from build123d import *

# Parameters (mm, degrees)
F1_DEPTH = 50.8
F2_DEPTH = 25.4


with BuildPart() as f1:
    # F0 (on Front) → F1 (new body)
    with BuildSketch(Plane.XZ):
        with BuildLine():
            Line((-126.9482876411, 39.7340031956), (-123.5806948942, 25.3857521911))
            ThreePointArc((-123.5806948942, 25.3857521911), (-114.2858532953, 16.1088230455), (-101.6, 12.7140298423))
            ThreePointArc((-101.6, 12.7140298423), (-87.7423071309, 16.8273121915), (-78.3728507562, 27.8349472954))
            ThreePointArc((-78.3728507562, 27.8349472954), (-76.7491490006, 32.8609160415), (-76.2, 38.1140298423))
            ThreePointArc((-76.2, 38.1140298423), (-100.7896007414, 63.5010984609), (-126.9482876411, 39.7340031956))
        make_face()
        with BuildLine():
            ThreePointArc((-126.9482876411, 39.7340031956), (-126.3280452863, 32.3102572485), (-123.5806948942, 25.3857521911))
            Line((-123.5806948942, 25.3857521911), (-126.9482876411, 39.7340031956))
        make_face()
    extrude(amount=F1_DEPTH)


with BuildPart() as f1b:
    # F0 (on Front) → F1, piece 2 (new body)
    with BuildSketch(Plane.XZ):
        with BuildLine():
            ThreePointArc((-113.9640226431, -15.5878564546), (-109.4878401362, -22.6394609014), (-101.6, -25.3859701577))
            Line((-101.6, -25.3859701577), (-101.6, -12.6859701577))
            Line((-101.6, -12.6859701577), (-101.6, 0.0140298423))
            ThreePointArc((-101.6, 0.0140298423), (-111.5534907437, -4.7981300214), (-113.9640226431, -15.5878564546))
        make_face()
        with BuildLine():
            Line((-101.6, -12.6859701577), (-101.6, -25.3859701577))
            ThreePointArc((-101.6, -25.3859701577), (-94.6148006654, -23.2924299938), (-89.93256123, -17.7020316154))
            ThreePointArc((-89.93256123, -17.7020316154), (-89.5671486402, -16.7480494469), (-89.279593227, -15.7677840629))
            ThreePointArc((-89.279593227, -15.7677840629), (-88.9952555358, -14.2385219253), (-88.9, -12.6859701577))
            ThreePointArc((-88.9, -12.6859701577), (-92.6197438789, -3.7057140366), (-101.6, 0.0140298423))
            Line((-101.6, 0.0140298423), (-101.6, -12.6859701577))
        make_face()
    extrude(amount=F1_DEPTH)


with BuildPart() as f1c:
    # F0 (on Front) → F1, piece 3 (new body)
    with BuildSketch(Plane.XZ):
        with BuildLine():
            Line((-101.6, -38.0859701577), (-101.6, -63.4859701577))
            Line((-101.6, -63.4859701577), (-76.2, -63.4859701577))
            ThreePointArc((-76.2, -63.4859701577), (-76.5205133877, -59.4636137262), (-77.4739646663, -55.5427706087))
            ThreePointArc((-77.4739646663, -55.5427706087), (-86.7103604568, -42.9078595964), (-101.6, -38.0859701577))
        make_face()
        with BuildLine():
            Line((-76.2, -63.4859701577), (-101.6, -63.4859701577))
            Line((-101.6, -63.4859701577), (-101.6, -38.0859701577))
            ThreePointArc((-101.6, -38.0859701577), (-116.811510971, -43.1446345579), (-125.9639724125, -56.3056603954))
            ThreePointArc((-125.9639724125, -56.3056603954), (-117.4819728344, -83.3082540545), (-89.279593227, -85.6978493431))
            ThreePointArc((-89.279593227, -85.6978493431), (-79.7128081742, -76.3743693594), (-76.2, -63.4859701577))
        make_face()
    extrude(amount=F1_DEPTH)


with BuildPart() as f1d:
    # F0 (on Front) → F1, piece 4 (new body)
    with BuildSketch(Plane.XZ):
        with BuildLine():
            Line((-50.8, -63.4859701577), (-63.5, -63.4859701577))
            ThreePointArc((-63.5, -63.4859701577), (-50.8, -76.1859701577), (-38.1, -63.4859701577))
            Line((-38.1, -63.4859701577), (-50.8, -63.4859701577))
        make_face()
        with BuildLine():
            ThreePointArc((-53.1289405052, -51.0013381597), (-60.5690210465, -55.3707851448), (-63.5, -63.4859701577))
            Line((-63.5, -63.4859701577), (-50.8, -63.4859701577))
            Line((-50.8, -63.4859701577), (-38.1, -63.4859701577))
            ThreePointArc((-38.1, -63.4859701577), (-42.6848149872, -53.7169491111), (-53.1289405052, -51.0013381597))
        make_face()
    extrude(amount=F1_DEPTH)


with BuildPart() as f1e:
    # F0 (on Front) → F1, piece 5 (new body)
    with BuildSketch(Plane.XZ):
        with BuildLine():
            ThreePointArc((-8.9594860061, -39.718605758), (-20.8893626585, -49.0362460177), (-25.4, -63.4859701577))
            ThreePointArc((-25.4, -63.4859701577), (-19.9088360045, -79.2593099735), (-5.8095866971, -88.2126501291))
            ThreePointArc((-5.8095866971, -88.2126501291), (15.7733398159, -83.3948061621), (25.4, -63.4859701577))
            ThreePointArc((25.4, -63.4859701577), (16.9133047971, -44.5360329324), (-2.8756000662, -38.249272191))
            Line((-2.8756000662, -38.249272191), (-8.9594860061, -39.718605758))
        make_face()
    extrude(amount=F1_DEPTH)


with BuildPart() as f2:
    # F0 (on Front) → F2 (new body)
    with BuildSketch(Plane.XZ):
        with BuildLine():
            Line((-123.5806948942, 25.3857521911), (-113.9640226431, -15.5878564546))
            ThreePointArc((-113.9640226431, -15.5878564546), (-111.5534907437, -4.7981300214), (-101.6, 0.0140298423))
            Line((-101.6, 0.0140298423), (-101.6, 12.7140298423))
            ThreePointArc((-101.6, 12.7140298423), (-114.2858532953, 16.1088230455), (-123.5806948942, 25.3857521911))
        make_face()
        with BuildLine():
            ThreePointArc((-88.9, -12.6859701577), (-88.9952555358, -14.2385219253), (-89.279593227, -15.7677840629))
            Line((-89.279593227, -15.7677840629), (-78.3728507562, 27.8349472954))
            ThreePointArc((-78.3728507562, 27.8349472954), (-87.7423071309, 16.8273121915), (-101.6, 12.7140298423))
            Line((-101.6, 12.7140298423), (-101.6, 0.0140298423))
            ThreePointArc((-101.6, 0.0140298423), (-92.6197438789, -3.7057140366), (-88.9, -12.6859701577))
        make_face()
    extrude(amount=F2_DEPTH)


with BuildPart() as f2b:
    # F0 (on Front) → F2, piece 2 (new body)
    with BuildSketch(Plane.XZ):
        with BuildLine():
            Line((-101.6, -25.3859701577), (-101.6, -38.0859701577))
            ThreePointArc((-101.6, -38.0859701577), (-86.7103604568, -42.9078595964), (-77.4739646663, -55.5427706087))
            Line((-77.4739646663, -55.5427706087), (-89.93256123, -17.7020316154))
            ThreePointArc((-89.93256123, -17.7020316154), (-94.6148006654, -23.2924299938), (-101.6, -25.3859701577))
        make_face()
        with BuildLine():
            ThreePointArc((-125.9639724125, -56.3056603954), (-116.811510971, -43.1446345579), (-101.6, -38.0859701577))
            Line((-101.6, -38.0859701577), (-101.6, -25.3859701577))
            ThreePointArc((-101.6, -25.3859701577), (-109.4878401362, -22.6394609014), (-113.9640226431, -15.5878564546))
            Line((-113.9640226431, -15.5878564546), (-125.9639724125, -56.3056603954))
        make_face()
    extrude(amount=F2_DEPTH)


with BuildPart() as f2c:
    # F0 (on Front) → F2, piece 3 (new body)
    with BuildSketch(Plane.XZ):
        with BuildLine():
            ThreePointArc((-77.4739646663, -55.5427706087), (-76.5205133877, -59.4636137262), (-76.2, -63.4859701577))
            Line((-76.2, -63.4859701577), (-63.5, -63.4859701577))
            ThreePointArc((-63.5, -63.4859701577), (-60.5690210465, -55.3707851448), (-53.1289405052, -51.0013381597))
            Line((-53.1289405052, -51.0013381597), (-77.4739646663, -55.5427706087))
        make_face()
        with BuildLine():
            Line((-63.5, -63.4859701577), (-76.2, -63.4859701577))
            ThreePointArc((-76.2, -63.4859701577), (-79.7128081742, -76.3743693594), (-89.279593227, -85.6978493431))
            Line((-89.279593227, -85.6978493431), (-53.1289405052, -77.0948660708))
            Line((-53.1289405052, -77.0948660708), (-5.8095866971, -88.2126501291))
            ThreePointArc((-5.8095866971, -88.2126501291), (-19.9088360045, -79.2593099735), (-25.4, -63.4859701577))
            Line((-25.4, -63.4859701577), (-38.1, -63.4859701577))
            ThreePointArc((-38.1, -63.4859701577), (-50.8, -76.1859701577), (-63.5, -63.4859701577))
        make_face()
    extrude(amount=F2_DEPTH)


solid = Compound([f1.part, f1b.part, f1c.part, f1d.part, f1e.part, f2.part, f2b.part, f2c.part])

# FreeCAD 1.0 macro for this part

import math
import FreeCAD as App
import Part
import Sketcher

V = App.Vector
Q = App.Units.Quantity

doc = App.newDocument("Part")
body = doc.addObject("PartDesign::Body", "Body")

# Sketch on XZ plane
sketch1 = body.newObject("Sketcher::SketchObject", "Sketch")
sketch1.AttachmentSupport = (doc.getObject("XZ_Plane"), [""])
sketch1.MapMode = "FlatFace"
sketch1.addGeometry([
    Part.ArcOfCircle(Part.Circle(V(-102, 38, 0), V(0, 0, 1), 25), math.radians(-150), math.radians(-24)),
    Part.ArcOfCircle(Part.Circle(V(-102, 38, 0), V(0, 0, 1), 25), math.radians(-24), math.radians(0)),
    Part.ArcOfCircle(Part.Circle(V(-102, 38, 0), V(0, 0, 1), 25), math.radians(0), math.radians(176)),
    Part.ArcOfCircle(Part.Circle(V(-102, 38, 0), V(0, 0, 1), 25), math.radians(176), math.radians(210)),
], False)
sketch1.addConstraint([
    Sketcher.Constraint("Tangent", 0, 2, 1, 1),
    Sketcher.Constraint("Tangent", 1, 2, 2, 1),
    Sketcher.Constraint("Tangent", 2, 2, 3, 1),
    Sketcher.Constraint("Tangent", 3, 2, 0, 1),
    Sketcher.Constraint("Equal", 0, 1),
    Sketcher.Constraint("Horizontal", 3, 3, 1, 2),
    Sketcher.Constraint("Radius", 0, Q("1 in")),
    Sketcher.Constraint("DistanceX", 0, 3, -1, 1, Q("4 in")),
    Sketcher.Constraint("DistanceY", -1, 1, 0, 3, 38.11403),
    Sketcher.Constraint("DistanceX", 0, 2, -1, 1, 78.372851),
    Sketcher.Constraint("DistanceY", 3, 2, 2, 2, 14.348251),
    Sketcher.Constraint("DistanceX", 2, 2, -1, 1, 126.948288),
])
pad1 = body.newObject("PartDesign::Pad", "Pad")
pad1.Profile = sketch1
pad1.Length = Q("2 in")
body2 = doc.addObject("PartDesign::Body", "Body001")

# Sketch on XZ plane
sketch2 = body2.newObject("Sketcher::SketchObject", "Sketch001")
sketch2.AttachmentSupport = (doc.getObject("XZ_Plane001"), [""])
sketch2.MapMode = "FlatFace"
sketch2.addGeometry([
    Part.ArcOfCircle(Part.Circle(V(-101.6, -12.7, 0), V(0, 0, 1), 12.7), math.radians(-167), math.radians(-90)),  # 0
    Part.ArcOfCircle(Part.Circle(V(-101.6, -12.7, 0), V(0, 0, 1), 12.7), math.radians(-90), math.radians(-23)),  # 1
    Part.ArcOfCircle(Part.Circle(V(-101.6, -12.7, 0), V(0, 0, 1), 12.7), math.radians(-23.26), math.radians(-14.04)),  # 2
    Part.ArcOfCircle(Part.Circle(V(-101.6, -12.7, 0), V(0, 0, 1), 12.7), math.radians(-14.04), math.radians(0)),  # 3
    Part.ArcOfCircle(Part.Circle(V(-101.6, -12.7, 0), V(0, 0, 1), 12.7), math.radians(0), math.radians(90)),  # 4
    Part.ArcOfCircle(Part.Circle(V(-101.6, -12.7, 0), V(0, 0, 1), 12.7), math.radians(90), math.radians(193)),  # 5
], False)
sketch2.addConstraint([
    Sketcher.Constraint("Tangent", 0, 2, 1, 1),
    Sketcher.Constraint("Tangent", 1, 2, 2, 1),
    Sketcher.Constraint("Tangent", 2, 2, 3, 1),
    Sketcher.Constraint("Tangent", 3, 2, 4, 1),
    Sketcher.Constraint("Tangent", 4, 2, 5, 1),
    Sketcher.Constraint("Tangent", 5, 2, 0, 1),
    Sketcher.Constraint("Coincident", 2, 3, 0, 3),
    Sketcher.Constraint("Equal", 2, 3),
    Sketcher.Constraint("Horizontal", 5, 3, 3, 2),
    Sketcher.Constraint("Vertical", 5, 3, 0, 2),
    Sketcher.Constraint("Vertical", 0, 2, 4, 2),
    Sketcher.Constraint("Radius", 0, Q("0.5 in")),
    Sketcher.Constraint("DistanceX", 0, 3, -1, 1, Q("4 in")),
    Sketcher.Constraint("DistanceY", 0, 3, -1, 1, 12.68597),
    Sketcher.Constraint("DistanceX", 1, 2, -1, 1, 89.932561),
    Sketcher.Constraint("DistanceX", 1, 2, 2, 2, 0.652968),
    Sketcher.Constraint("DistanceX", 5, 2, -1, 1, 113.964023),
])
pad2 = body2.newObject("PartDesign::Pad", "Pad001")
pad2.Profile = sketch2
pad2.Length = Q("2 in")
body3 = doc.addObject("PartDesign::Body", "Body002")

# Sketch on XZ plane
sketch3 = body3.newObject("Sketcher::SketchObject", "Sketch002")
sketch3.AttachmentSupport = (doc.getObject("XZ_Plane002"), [""])
sketch3.MapMode = "FlatFace"
sketch3.addGeometry([
    Part.ArcOfCircle(Part.Circle(V(-102, -63, 0), V(0, 0, 1), 25), math.radians(0), math.radians(18.22)),  # 0
    Part.ArcOfCircle(Part.Circle(V(-102, -63, 0), V(0, 0, 1), 25), math.radians(18), math.radians(90)),  # 1
    Part.ArcOfCircle(Part.Circle(V(-102, -63, 0), V(0, 0, 1), 25), math.radians(90), math.radians(164)),  # 2
    Part.ArcOfCircle(Part.Circle(V(-102, -63, 0), V(0, 0, 1), 25), math.radians(164), math.radians(299)),  # 3
    Part.ArcOfCircle(Part.Circle(V(-102, -63, 0), V(0, 0, 1), 25), math.radians(-61), math.radians(0)),  # 4
], False)
sketch3.addConstraint([
    Sketcher.Constraint("Tangent", 0, 2, 1, 1),
    Sketcher.Constraint("Tangent", 1, 2, 2, 1),
    Sketcher.Constraint("Tangent", 2, 2, 3, 1),
    Sketcher.Constraint("Tangent", 3, 2, 4, 1),
    Sketcher.Constraint("Tangent", 4, 2, 0, 1),
    Sketcher.Constraint("Coincident", 2, 3, 0, 3),
    Sketcher.Constraint("Horizontal", 3, 3, 4, 2),
    Sketcher.Constraint("Vertical", 4, 3, 1, 2),
    Sketcher.Constraint("Radius", 0, Q("1 in")),
    Sketcher.Constraint("DistanceX", 0, 3, -1, 1, Q("4 in")),
    Sketcher.Constraint("DistanceY", 2, 3, 0, 2, 7.9432),
    Sketcher.Constraint("DistanceY", 0, 3, -1, 1, 63.48597),
    Sketcher.Constraint("DistanceY", 2, 2, -1, 1, 56.30566),
    Sketcher.Constraint("DistanceY", 3, 2, -1, 1, 85.697849),
])
pad3 = body3.newObject("PartDesign::Pad", "Pad002")
pad3.Profile = sketch3
pad3.Length = Q("2 in")
body4 = doc.addObject("PartDesign::Body", "Body003")

# Sketch on XZ plane
sketch4 = body4.newObject("Sketcher::SketchObject", "Sketch003")
sketch4.AttachmentSupport = (doc.getObject("XZ_Plane003"), [""])
sketch4.MapMode = "FlatFace"
sketch4.addGeometry([
    Part.ArcOfCircle(Part.Circle(V(-51, -63, 0), V(0, 0, 1), 13), math.radians(0), math.radians(101)),
    Part.ArcOfCircle(Part.Circle(V(-51, -63, 0), V(0, 0, 1), 13), math.radians(101), math.radians(360)),
], False)
sketch4.addConstraint([
    Sketcher.Constraint("Tangent", 0, 1, 1, 2),
    Sketcher.Constraint("Coincident", 1, 1, 0, 2),
    Sketcher.Constraint("Horizontal", 1, 3, 0, 1),
    Sketcher.Constraint("Radius", 0, Q("0.5 in")),
    Sketcher.Constraint("DistanceX", 0, 3, -1, 1, Q("2 in")),
    Sketcher.Constraint("DistanceY", 0, 3, -1, 1, 63.48597),
    Sketcher.Constraint("DistanceX", 1, 1, -1, 1, 53.128941),
])
pad4 = body4.newObject("PartDesign::Pad", "Pad003")
pad4.Profile = sketch4
pad4.Length = Q("2 in")
body5 = doc.addObject("PartDesign::Body", "Body004")

# Sketch on XZ plane
sketch5 = body5.newObject("Sketcher::SketchObject", "Sketch004")
sketch5.AttachmentSupport = (doc.getObject("XZ_Plane004"), [""])
sketch5.MapMode = "FlatFace"
sketch5.addGeometry([
    Part.ArcOfCircle(Part.Circle(V(0, -63, 0), V(0, 0, 1), 25), math.radians(111), math.radians(180)),
    Part.ArcOfCircle(Part.Circle(V(0, -63, 0), V(0, 0, 1), 25), math.radians(180), math.radians(257)),
    Part.ArcOfCircle(Part.Circle(V(0, -63, 0), V(0, 0, 1), 25), math.radians(-103), math.radians(97)),
    Part.LineSegment(V(-3, -38, 0), V(-9, -40, 0)),
], False)
sketch5.addConstraint([
    Sketcher.Constraint("Tangent", 0, 2, 1, 1),
    Sketcher.Constraint("Tangent", 1, 2, 2, 1),
    Sketcher.Constraint("Coincident", 2, 2, 3, 1),
    Sketcher.Constraint("Coincident", 3, 2, 0, 1),
    Sketcher.Constraint("Coincident", 2, 3, 0, 3),
    Sketcher.Constraint("PointOnObject", 0, 3, -2),
    Sketcher.Constraint("Horizontal", 2, 3, 0, 2),
    Sketcher.Constraint("Radius", 0, Q("1 in")),
    Sketcher.Constraint("DistanceX", 2, 2, -1, 1, 2.8756),
    Sketcher.Constraint("DistanceY", 0, 3, -1, 1, 63.48597),
    Sketcher.Constraint("DistanceY", 1, 2, -1, 1, 88.21265),
    Sketcher.Constraint("Distance", 3, 6.258803),
])
pad5 = body5.newObject("PartDesign::Pad", "Pad004")
pad5.Profile = sketch5
pad5.Length = Q("2 in")
body6 = doc.addObject("PartDesign::Body", "Body005")

# Sketch on XZ plane
sketch6 = body6.newObject("Sketcher::SketchObject", "Sketch005")
sketch6.AttachmentSupport = (doc.getObject("XZ_Plane005"), [""])
sketch6.MapMode = "FlatFace"
sketch6.addGeometry([
    Part.LineSegment(V(-123.6, 25.4, 0), V(-114, -15.6, 0)),  # 0
    Part.ArcOfCircle(Part.Circle(V(-101.6, -12.7, 0), V(0, 0, 1), 12.7), math.radians(90), math.radians(193)),  # 1
    Part.ArcOfCircle(Part.Circle(V(-101.6, -12.7, 0), V(0, 0, 1), 12.7), math.radians(0), math.radians(90)),  # 2
    Part.ArcOfCircle(Part.Circle(V(-101.6, -12.7, 0), V(0, 0, 1), 12.7), math.radians(-14.04), math.radians(0)),  # 3
    Part.LineSegment(V(-89.3, -15.8, 0), V(-78.4, 27.8, 0)),  # 4
    Part.ArcOfCircle(Part.Circle(V(-101.6, 38.1, 0), V(0, 0, 1), 25.4), math.radians(-150), math.radians(-24)),  # 5
], False)
sketch6.addConstraint([
    Sketcher.Constraint("Tangent", 0, 2, 1, 2),
    Sketcher.Constraint("Tangent", 1, 1, 2, 2),
    Sketcher.Constraint("Tangent", 2, 1, 3, 2),
    Sketcher.Constraint("Tangent", 3, 1, 4, 1),
    Sketcher.Constraint("Coincident", 4, 2, 5, 2),
    Sketcher.Constraint("Coincident", 5, 1, 0, 1),
    Sketcher.Constraint("Coincident", 3, 3, 1, 3),
    Sketcher.Constraint("Horizontal", 3, 3, 2, 1),
    Sketcher.Constraint("Vertical", 3, 3, 5, 3),
    Sketcher.Constraint("Vertical", 5, 3, 1, 1),
    Sketcher.Constraint("Radius", 5, Q("1 in")),
    Sketcher.Constraint("Radius", 1, Q("0.5 in")),
    Sketcher.Constraint("DistanceX", 1, 3, -1, 1, Q("4 in")),
    Sketcher.Constraint("DistanceY", 3, 3, 5, 3, Q("2 in")),
    Sketcher.Constraint("DistanceY", 1, 3, -1, 1, 12.68597),
    Sketcher.Constraint("DistanceX", 4, 2, -1, 1, 78.372851),
    Sketcher.Constraint("DistanceY", 0, 2, 5, 1, 40.973609),
])
pad6 = body6.newObject("PartDesign::Pad", "Pad005")
pad6.Profile = sketch6
pad6.Length = Q("1 in")
body7 = doc.addObject("PartDesign::Body", "Body006")

# Sketch on XZ plane
sketch7 = body7.newObject("Sketcher::SketchObject", "Sketch006")
sketch7.AttachmentSupport = (doc.getObject("XZ_Plane006"), [""])
sketch7.MapMode = "FlatFace"
sketch7.addGeometry([
    Part.ArcOfCircle(Part.Circle(V(-102, -63, 0), V(0, 0, 1), 25), math.radians(18), math.radians(90)),  # 0
    Part.LineSegment(V(-77, -56, 0), V(-90, -18, 0)),  # 1
    Part.ArcOfCircle(Part.Circle(V(-102, -13, 0), V(0, 0, 1), 13), math.radians(-90), math.radians(-23)),  # 2
    Part.ArcOfCircle(Part.Circle(V(-102, -13, 0), V(0, 0, 1), 13), math.radians(-167), math.radians(-90)),  # 3
    Part.LineSegment(V(-114, -16, 0), V(-126, -56, 0)),  # 4
    Part.ArcOfCircle(Part.Circle(V(-102, -63, 0), V(0, 0, 1), 25), math.radians(90), math.radians(164)),  # 5
], False)
sketch7.addConstraint([
    Sketcher.Constraint("Tangent", 0, 1, 1, 1),
    Sketcher.Constraint("Coincident", 1, 2, 2, 2),
    Sketcher.Constraint("Tangent", 2, 1, 3, 2),
    Sketcher.Constraint("Coincident", 3, 1, 4, 1),
    Sketcher.Constraint("Tangent", 4, 2, 5, 2),
    Sketcher.Constraint("Tangent", 5, 1, 0, 2),
    Sketcher.Constraint("Equal", 2, 3),
    Sketcher.Constraint("Equal", 0, 5),
    Sketcher.Constraint("Vertical", 0, 3, 2, 3),
    Sketcher.Constraint("Vertical", 5, 3, 2, 1),
    Sketcher.Constraint("Vertical", 2, 1, 5, 1),
    Sketcher.Constraint("Radius", 0, Q("1 in")),
    Sketcher.Constraint("Radius", 2, Q("0.5 in")),
    Sketcher.Constraint("DistanceX", 0, 3, -1, 1, Q("4 in")),
    Sketcher.Constraint("DistanceY", 0, 3, 2, 3, Q("2 in")),
    Sketcher.Constraint("DistanceY", 5, 3, 0, 1, 7.9432),
    Sketcher.Constraint("DistanceY", 0, 3, -1, 1, 63.48597),
    Sketcher.Constraint("DistanceY", 4, 2, -1, 1, 56.30566),
])
pad7 = body7.newObject("PartDesign::Pad", "Pad006")
pad7.Profile = sketch7
pad7.Length = Q("1 in")
body8 = doc.addObject("PartDesign::Body", "Body007")

# Sketch on XZ plane
sketch8 = body8.newObject("Sketcher::SketchObject", "Sketch007")
sketch8.AttachmentSupport = (doc.getObject("XZ_Plane007"), [""])
sketch8.MapMode = "FlatFace"
sketch8.addGeometry([
    Part.ArcOfCircle(Part.Circle(V(-102, -63, 0), V(0, 0, 1), 25), math.radians(0), math.radians(18.22)),  # 0
    Part.ArcOfCircle(Part.Circle(V(-102, -63, 0), V(0, 0, 1), 25), math.radians(-61), math.radians(0)),  # 1
    Part.LineSegment(V(-89, -86, 0), V(-53, -77, 0)),  # 2
    Part.LineSegment(V(-53, -77, 0), V(-6, -88, 0)),  # 3
    Part.ArcOfCircle(Part.Circle(V(0, -63, 0), V(0, 0, 1), 25), math.radians(180), math.radians(257)),  # 4
    Part.LineSegment(V(-25, -63, 0), V(-38, -63, 0)),  # 5
    Part.ArcOfCircle(Part.Circle(V(-51, -63, 0), V(0, 0, 1), 13), math.radians(101), math.radians(360)),  # 6
    Part.LineSegment(V(-53, -51, 0), V(-77, -56, 0)),  # 7
], False)
sketch8.addConstraint([
    Sketcher.Constraint("Tangent", 0, 1, 1, 2),
    Sketcher.Constraint("Coincident", 1, 1, 2, 1),
    Sketcher.Constraint("Coincident", 2, 2, 3, 1),
    Sketcher.Constraint("Tangent", 3, 2, 4, 2),
    Sketcher.Constraint("Coincident", 4, 1, 5, 1),
    Sketcher.Constraint("Coincident", 5, 2, 6, 2),
    Sketcher.Constraint("Tangent", 6, 1, 7, 1),
    Sketcher.Constraint("Coincident", 7, 2, 0, 2),
    Sketcher.Constraint("Horizontal", 5),
    Sketcher.Constraint("Equal", 0, 1),
    Sketcher.Constraint("Equal", 1, 4),
    Sketcher.Constraint("PointOnObject", 4, 3, -2),
    Sketcher.Constraint("Horizontal", 1, 3, 4, 3),
    Sketcher.Constraint("Horizontal", 4, 3, 6, 3),
    Sketcher.Constraint("Horizontal", 6, 3, 0, 1),
    Sketcher.Constraint("Horizontal", 0, 1, 4, 1),
    Sketcher.Constraint("Vertical", 2, 2, 6, 1),
    Sketcher.Constraint("Radius", 0, Q("1 in")),
    Sketcher.Constraint("Radius", 6, Q("0.5 in")),
    Sketcher.Constraint("DistanceX", 5, 2, 5, 1, Q("0.5 in")),
    Sketcher.Constraint("DistanceX", 0, 3, -1, 1, Q("4 in")),
    Sketcher.Constraint("DistanceY", 1, 1, 2, 2, Q("0.3387001 in")),
    Sketcher.Constraint("DistanceY", 3, 2, 1, 1, 2.514801),
    Sketcher.Constraint("DistanceY", 0, 1, 7, 2, 7.9432),
    Sketcher.Constraint("DistanceY", 0, 3, -1, 1, 63.48597),
])
pad8 = body8.newObject("PartDesign::Pad", "Pad007")
pad8.Profile = sketch8
pad8.Length = Q("1 in")

doc.recompute()
